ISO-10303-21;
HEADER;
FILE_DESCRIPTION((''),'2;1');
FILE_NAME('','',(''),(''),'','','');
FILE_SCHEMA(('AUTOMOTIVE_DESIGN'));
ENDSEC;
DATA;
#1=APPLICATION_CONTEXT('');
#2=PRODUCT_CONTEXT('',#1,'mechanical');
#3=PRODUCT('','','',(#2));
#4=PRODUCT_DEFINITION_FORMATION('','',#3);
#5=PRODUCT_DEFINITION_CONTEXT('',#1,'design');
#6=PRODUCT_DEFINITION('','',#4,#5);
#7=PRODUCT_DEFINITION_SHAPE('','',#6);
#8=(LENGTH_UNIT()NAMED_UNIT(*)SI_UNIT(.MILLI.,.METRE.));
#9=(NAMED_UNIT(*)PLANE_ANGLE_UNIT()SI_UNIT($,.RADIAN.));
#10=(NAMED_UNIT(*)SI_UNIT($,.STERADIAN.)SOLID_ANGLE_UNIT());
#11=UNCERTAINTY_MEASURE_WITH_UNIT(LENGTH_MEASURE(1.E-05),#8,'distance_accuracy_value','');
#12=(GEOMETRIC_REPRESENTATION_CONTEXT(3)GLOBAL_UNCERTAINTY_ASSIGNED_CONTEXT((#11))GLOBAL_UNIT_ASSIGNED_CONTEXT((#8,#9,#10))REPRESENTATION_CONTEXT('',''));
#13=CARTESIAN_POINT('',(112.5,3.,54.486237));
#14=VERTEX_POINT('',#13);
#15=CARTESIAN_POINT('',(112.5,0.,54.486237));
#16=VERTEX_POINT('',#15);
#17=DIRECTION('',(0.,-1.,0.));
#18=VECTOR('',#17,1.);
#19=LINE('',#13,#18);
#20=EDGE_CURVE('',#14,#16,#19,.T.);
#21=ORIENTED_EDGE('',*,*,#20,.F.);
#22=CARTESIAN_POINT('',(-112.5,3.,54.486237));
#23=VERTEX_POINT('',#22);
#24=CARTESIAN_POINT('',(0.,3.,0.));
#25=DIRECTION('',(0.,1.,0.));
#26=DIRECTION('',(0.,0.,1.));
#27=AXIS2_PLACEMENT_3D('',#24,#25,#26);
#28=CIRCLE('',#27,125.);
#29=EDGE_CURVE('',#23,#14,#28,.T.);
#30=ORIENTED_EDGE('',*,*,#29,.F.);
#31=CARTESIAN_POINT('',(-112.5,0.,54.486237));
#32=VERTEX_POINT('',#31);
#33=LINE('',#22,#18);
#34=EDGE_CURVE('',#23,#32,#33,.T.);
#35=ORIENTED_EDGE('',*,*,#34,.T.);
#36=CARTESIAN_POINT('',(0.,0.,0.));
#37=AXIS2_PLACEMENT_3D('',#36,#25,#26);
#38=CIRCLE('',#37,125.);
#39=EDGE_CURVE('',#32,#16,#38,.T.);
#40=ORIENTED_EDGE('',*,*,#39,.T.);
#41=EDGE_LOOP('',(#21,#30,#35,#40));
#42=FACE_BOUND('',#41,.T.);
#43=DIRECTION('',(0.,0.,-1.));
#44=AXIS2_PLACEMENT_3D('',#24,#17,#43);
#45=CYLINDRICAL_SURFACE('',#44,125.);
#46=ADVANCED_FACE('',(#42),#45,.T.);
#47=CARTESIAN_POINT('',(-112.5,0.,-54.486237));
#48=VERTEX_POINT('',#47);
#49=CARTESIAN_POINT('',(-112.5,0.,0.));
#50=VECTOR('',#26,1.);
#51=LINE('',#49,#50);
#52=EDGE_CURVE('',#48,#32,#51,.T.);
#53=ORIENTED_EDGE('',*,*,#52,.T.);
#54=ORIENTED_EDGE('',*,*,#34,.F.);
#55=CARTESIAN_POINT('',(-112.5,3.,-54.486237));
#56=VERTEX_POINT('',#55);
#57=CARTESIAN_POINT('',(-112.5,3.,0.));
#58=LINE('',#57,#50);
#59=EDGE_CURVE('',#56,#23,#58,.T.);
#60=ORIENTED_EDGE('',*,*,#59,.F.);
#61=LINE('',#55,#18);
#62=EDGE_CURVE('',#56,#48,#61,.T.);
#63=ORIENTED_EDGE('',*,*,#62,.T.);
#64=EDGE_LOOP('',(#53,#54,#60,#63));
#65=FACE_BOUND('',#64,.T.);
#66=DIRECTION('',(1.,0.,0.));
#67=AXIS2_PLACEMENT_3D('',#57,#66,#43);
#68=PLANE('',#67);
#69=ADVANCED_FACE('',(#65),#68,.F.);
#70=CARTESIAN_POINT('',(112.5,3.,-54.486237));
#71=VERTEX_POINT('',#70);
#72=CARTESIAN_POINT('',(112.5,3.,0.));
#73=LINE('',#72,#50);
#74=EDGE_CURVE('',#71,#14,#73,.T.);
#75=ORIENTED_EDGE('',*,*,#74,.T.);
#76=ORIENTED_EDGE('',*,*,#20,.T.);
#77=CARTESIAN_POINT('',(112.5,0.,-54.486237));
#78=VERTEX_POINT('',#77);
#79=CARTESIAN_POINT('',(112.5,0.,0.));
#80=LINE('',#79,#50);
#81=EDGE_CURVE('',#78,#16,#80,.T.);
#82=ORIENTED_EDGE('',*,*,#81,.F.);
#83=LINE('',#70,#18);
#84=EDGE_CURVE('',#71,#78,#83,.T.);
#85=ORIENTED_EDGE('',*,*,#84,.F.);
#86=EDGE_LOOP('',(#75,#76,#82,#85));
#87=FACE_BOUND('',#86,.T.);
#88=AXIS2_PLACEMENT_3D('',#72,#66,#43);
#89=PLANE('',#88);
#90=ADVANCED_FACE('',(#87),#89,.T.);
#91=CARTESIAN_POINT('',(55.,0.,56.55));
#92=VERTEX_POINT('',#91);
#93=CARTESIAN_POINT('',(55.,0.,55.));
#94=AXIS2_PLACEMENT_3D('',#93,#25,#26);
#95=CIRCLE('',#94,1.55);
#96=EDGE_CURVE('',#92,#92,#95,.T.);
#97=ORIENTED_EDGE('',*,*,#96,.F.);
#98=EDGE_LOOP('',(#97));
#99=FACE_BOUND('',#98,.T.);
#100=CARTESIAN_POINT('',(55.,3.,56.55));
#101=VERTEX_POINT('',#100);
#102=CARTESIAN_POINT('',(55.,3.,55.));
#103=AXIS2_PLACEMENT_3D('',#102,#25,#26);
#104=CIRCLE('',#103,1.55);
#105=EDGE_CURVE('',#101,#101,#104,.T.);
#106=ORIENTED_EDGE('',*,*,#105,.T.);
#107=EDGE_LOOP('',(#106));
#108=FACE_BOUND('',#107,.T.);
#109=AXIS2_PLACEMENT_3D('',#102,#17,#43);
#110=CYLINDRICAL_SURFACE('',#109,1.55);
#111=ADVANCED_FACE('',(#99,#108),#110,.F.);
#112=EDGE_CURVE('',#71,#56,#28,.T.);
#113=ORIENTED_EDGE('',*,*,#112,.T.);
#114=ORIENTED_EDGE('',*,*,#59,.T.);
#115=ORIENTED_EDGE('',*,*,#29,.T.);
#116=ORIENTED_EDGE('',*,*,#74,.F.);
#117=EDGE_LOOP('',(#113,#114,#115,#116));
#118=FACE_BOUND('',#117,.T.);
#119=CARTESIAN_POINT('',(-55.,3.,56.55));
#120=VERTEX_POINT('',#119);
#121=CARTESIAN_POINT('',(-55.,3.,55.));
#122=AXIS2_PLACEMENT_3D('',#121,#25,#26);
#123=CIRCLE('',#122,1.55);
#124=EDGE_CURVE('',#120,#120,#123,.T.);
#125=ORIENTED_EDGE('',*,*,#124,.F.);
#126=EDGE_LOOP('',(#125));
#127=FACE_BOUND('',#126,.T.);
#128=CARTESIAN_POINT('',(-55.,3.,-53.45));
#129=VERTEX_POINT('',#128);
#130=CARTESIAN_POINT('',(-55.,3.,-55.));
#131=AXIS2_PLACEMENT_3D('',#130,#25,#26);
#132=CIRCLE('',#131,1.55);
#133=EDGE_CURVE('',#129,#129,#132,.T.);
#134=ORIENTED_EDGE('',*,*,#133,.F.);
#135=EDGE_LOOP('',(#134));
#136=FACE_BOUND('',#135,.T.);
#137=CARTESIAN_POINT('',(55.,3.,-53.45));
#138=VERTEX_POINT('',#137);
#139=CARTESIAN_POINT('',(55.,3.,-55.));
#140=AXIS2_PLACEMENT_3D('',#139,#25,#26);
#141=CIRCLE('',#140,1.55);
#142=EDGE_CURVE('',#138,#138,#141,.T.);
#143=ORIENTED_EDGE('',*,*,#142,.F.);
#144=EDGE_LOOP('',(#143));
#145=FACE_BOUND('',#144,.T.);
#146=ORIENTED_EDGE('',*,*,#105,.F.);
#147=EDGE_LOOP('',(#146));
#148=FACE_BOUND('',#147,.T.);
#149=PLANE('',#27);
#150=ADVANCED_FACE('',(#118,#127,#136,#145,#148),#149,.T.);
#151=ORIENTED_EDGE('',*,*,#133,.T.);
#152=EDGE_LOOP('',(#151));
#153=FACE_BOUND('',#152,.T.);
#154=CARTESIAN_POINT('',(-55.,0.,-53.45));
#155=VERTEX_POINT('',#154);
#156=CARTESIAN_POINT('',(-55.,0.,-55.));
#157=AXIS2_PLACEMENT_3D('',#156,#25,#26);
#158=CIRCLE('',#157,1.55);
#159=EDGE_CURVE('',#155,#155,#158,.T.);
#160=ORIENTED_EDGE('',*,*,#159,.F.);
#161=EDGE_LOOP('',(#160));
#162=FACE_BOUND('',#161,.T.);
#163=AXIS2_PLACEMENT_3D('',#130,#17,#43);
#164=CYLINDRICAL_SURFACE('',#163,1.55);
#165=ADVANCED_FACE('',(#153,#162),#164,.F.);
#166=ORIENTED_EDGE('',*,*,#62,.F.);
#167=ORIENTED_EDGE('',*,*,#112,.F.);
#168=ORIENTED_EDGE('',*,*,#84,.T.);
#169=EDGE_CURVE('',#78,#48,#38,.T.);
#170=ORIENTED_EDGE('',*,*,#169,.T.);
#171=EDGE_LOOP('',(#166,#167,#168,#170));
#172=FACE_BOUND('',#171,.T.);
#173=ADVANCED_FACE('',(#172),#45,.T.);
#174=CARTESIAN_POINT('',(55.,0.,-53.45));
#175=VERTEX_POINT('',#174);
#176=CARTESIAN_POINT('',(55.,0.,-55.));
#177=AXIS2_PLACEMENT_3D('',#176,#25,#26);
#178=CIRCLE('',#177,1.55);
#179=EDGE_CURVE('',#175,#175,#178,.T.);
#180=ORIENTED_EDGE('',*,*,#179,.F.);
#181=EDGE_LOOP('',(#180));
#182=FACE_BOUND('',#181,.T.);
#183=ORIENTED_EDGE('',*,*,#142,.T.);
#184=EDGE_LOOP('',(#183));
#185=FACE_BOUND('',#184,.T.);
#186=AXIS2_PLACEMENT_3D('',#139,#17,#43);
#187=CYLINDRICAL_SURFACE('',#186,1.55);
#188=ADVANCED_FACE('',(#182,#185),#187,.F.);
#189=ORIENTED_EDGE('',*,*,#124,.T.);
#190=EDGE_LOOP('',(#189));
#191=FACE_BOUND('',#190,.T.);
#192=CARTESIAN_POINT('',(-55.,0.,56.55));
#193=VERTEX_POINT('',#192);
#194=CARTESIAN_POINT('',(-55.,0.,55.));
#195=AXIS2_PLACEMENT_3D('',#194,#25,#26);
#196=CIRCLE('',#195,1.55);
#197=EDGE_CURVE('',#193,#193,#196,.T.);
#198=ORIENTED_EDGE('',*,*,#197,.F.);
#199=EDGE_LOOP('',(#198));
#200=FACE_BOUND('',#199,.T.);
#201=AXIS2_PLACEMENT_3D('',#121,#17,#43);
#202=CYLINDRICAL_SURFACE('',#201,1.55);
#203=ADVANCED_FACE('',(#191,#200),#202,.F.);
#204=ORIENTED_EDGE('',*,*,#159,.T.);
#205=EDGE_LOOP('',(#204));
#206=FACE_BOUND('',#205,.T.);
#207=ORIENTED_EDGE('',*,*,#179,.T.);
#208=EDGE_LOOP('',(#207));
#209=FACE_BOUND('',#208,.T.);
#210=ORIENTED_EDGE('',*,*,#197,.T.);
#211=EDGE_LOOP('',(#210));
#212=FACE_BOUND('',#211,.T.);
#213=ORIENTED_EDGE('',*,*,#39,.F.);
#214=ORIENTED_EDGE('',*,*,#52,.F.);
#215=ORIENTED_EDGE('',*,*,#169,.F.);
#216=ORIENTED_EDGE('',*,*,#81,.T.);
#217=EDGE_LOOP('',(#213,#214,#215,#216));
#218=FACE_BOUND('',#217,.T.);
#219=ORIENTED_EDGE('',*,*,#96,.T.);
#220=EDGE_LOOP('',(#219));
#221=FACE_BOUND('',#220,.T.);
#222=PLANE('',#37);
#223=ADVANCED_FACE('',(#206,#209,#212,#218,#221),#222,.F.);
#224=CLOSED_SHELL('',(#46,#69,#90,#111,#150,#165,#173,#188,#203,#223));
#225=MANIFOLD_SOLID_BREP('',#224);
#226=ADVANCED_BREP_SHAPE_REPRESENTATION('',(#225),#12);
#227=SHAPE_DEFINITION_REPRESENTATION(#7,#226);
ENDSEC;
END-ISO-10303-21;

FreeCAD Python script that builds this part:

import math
import FreeCAD as App
import Part
import Sketcher

V = App.Vector

doc = App.newDocument("Part")
body = doc.addObject("PartDesign::Body", "Body")

sketch1 = doc.addObject("Sketcher::SketchObject", "Sketch")
body.addObject(sketch1)
sketch1.AttachmentSupport = (doc.XZ_Plane, [""])
sketch1.MapMode = "FlatFace"
sketch1.addGeometry(Part.ArcOfCircle(Part.Circle(V(0, 0, 0), V(0, 0, 1), 125), math.radians(-154), math.radians(-26)), False)
sketch1.addGeometry(Part.LineSegment(V(-112.5, -54.5, 0), V(-112.5, 54.5, 0)), False)
sketch1.addGeometry(Part.ArcOfCircle(Part.Circle(V(0, 0, 0), V(0, 0, 1), 125), math.radians(26), math.radians(154)), False)
sketch1.addGeometry(Part.LineSegment(V(112.5, 54.5, 0), V(112.5, -54.5, 0)), False)
sketch1.addGeometry(Part.Circle(V(-55, 55, 0), V(0, 0, 1), 1.6), False)
sketch1.addGeometry(Part.Circle(V(55, 55, 0), V(0, 0, 1), 1.6), False)
sketch1.addGeometry(Part.Circle(V(-55, -55, 0), V(0, 0, 1), 1.6), False)
sketch1.addGeometry(Part.Circle(V(55, -55, 0), V(0, 0, 1), 1.6), False)
sketch1.addConstraint(Sketcher.Constraint("Coincident", 0, 1, 1, 1))
sketch1.addConstraint(Sketcher.Constraint("Coincident", 1, 2, 2, 2))
sketch1.addConstraint(Sketcher.Constraint("Coincident", 2, 1, 3, 1))
sketch1.addConstraint(Sketcher.Constraint("Coincident", 3, 2, 0, 2))
sketch1.addConstraint(Sketcher.Constraint("Vertical", 1))
sketch1.addConstraint(Sketcher.Constraint("Vertical", 3))
sketch1.addConstraint(Sketcher.Constraint("Coincident", 0, 3, -1, 1))
sketch1.addConstraint(Sketcher.Constraint("Coincident", 2, 3, -1, 1))
sketch1.addConstraint(Sketcher.Constraint("Equal", 0, 2))
sketch1.addConstraint(Sketcher.Constraint("Equal", 4, 5))
sketch1.addConstraint(Sketcher.Constraint("Equal", 5, 6))
sketch1.addConstraint(Sketcher.Constraint("Equal", 6, 7))
sketch1.addConstraint(Sketcher.Constraint("Symmetric", 5, 3, 6, 3, -1, 1))
sketch1.addConstraint(Sketcher.Constraint("Symmetric", 4, 3, 7, 3, -1, 1))
sketch1.addConstraint(Sketcher.Constraint("Symmetric", 4, 3, 5, 3, -2))
sketch1.addConstraint(Sketcher.Constraint("Horizontal", 1, 2, 2, 1))
sketch1.addConstraint(Sketcher.Constraint("Radius", 0, 125.0))
sketch1.addConstraint(Sketcher.Constraint("Diameter", 4, 3.1))
sketch1.addConstraint(Sketcher.Constraint("DistanceX", 4, 3, -1, 1, 55.0))
sketch1.addConstraint(Sketcher.Constraint("DistanceY", -1, 1, 4, 3, 55.0))
sketch1.addConstraint(Sketcher.Constraint("DistanceX", 0, 1, -1, 1, 112.5))
pad1 = doc.addObject("PartDesign::Pad", "Pad")
body.addObject(pad1)
pad1.Profile = sketch1
pad1.Length = 3
pad1.Reversed = True

doc.recompute()
